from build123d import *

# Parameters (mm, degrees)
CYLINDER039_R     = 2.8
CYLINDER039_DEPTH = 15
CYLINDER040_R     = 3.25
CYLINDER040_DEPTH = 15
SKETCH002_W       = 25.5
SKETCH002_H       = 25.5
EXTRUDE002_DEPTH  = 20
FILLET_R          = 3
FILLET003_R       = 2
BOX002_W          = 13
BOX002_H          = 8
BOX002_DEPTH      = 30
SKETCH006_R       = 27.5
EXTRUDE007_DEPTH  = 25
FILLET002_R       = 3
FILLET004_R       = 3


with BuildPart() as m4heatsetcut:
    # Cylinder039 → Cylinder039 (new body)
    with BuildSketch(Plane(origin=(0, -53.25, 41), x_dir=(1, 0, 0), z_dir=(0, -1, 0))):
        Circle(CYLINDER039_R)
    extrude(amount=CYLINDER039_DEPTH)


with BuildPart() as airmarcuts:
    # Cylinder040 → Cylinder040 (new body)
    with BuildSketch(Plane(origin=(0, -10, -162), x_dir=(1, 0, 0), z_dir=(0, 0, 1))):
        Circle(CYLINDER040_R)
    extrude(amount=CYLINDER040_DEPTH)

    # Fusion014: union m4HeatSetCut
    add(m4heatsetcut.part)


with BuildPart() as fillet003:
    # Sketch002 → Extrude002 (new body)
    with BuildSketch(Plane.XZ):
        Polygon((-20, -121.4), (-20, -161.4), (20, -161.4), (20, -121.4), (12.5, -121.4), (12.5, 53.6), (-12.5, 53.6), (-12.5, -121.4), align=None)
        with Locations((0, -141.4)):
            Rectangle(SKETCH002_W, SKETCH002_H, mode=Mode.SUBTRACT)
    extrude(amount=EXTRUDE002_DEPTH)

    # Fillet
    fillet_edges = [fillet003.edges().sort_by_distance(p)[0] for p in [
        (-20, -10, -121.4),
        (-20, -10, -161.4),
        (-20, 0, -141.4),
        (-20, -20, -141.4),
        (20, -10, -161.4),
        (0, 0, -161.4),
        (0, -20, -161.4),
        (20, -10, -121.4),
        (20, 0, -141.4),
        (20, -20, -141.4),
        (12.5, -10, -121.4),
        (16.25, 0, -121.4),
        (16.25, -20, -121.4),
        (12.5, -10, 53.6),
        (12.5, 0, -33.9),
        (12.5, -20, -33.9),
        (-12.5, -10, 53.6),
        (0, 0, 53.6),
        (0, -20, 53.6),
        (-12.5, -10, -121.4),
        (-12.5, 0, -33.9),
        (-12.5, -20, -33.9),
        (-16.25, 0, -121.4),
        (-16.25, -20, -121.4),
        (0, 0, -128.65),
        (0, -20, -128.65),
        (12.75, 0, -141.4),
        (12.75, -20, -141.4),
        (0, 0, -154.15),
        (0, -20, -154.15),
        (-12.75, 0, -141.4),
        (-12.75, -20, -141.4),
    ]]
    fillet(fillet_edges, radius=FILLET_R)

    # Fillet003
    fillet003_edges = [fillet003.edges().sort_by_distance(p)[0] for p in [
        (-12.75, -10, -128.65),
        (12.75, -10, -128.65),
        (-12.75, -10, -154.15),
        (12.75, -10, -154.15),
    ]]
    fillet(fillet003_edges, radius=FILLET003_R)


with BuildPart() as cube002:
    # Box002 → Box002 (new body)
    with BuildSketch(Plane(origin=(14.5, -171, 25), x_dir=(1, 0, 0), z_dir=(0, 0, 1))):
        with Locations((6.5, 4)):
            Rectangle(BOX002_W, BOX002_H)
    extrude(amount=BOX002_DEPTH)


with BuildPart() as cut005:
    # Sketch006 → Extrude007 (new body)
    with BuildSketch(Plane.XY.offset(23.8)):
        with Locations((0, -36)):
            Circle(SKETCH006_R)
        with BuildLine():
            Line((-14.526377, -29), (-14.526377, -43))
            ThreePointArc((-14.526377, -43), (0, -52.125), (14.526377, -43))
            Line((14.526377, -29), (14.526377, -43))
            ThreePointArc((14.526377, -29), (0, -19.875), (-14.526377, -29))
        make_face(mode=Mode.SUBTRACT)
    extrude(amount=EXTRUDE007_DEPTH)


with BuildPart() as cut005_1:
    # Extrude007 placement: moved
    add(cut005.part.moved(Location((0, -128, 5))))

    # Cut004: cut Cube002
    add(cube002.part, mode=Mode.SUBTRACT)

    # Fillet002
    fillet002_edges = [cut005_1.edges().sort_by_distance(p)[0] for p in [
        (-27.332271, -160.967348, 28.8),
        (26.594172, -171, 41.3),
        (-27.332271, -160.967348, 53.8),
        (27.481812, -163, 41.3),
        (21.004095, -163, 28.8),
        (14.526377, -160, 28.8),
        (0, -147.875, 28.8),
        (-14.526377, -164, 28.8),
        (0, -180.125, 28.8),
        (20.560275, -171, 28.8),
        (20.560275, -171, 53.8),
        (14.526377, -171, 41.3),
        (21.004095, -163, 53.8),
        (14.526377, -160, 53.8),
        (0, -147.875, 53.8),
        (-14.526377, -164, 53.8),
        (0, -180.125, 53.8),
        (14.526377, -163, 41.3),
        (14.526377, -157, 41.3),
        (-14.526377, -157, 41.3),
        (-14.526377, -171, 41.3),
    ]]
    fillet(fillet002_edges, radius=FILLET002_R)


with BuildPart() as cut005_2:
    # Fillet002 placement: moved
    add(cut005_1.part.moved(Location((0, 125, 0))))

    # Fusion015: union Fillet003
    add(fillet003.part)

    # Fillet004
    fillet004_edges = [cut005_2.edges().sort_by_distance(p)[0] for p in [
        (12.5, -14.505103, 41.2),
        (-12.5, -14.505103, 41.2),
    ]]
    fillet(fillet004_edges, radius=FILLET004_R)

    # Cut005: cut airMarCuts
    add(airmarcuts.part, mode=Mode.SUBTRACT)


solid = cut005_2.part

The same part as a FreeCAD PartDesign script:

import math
import FreeCAD as App
import Part
import Sketcher

V = App.Vector


def edges_at(feature, points):
    """Names of the edges that pass closest to the given points."""
    edges = feature.Shape.Edges
    near = lambda p: min(range(len(edges)), key=lambda i: edges[i].distToShape(Part.Vertex(*p))[0])
    return sorted({f"Edge{near(p) + 1}" for p in points})


def add_polygon(sketch, points):
    """Adds a closed chain of lines whose ends are joined by coincident constraints."""
    first, n = sketch.GeometryCount, len(points)
    for a, b in zip(points, points[1:] + points[:1]):
        sketch.addGeometry(Part.LineSegment(App.Vector(*a, 0), App.Vector(*b, 0)), False)
    for i in range(n):
        sketch.addConstraint(Sketcher.Constraint("Coincident", first + i, 2, first + (i + 1) % n, 1))

doc = App.newDocument("Part")
body = doc.addObject("PartDesign::Body", "Body")

sketch1 = body.newObject("Sketcher::SketchObject", "Sketch")
sketch1.AttachmentSupport = (doc.getObject("XZ_Plane"), [""])
sketch1.MapMode = "FlatFace"
sketch1.AttachmentOffset = App.Placement(V(0, 0, 53.25), App.Rotation())
sketch1.addGeometry(Part.Circle(V(0, 41, 0), V(0, 0, 1), 2.8), False)
sketch1.addConstraint(Sketcher.Constraint("PointOnObject", 0, 3, -2))
sketch1.addConstraint(Sketcher.Constraint("Diameter", 0, 5.6))
sketch1.addConstraint(Sketcher.Constraint("DistanceY", -1, 1, 0, 3, 41.0))
pad1 = body.newObject("PartDesign::Pad", "Pad")
pad1.Profile = sketch1
pad1.Length = 15
body2 = doc.addObject("PartDesign::Body", "Body001")
body2.AllowCompound = True

sketch2 = body2.newObject("Sketcher::SketchObject", "Sketch001")
sketch2.AttachmentSupport = (doc.getObject("XY_Plane001"), [""])
sketch2.MapMode = "FlatFace"
sketch2.AttachmentOffset = App.Placement(V(0, 0, -162), App.Rotation())
sketch2.addGeometry(Part.Circle(V(0, -10, 0), V(0, 0, 1), 3.25), False)
sketch2.addConstraint(Sketcher.Constraint("PointOnObject", 0, 3, -2))
sketch2.addConstraint(Sketcher.Constraint("Diameter", 0, 6.5))
sketch2.addConstraint(Sketcher.Constraint("DistanceY", 0, 3, -1, 1, 10.0))
pad2 = body2.newObject("PartDesign::Pad", "Pad001")
pad2.Profile = sketch2
pad2.Length = 15
doc.recompute()

boolean = body2.newObject("PartDesign::Boolean", "Boolean")
boolean.Type = "Fuse"
boolean.addObjects([body])
body3 = doc.addObject("PartDesign::Body", "Body002")

sketch3 = body3.newObject("Sketcher::SketchObject", "Sketch002")
sketch3.AttachmentSupport = (doc.getObject("XZ_Plane002"), [""])
sketch3.MapMode = "FlatFace"
add_polygon(sketch3, [(-20, -121.4), (-20, -161.4), (20, -161.4), (20, -121.4), (12.5, -121.4), (12.5, 53.6), (-12.5, 53.6), (-12.5, -121.4)])
add_polygon(sketch3, [(12.75, -154.15), (-12.75, -154.15), (-12.75, -128.65), (12.75, -128.65)])
sketch3.addConstraint(Sketcher.Constraint("Vertical", 0))
sketch3.addConstraint(Sketcher.Constraint("Horizontal", 1))
sketch3.addConstraint(Sketcher.Constraint("Vertical", 2))
sketch3.addConstraint(Sketcher.Constraint("Horizontal", 3))
sketch3.addConstraint(Sketcher.Constraint("Vertical", 4))
sketch3.addConstraint(Sketcher.Constraint("Horizontal", 5))
sketch3.addConstraint(Sketcher.Constraint("Vertical", 6))
sketch3.addConstraint(Sketcher.Constraint("Horizontal", 7))
sketch3.addConstraint(Sketcher.Constraint("Horizontal", 8))
sketch3.addConstraint(Sketcher.Constraint("Vertical", 9))
sketch3.addConstraint(Sketcher.Constraint("Horizontal", 10))
sketch3.addConstraint(Sketcher.Constraint("Vertical", 11))
sketch3.addConstraint(Sketcher.Constraint("Symmetric", 3, 2, 6, 2, -2))
sketch3.addConstraint(Sketcher.Constraint("Equal", 3, 7))
sketch3.addConstraint(Sketcher.Constraint("Equal", 1, 0))
sketch3.addConstraint(Sketcher.Constraint("Equal", 10, 9))
sketch3.addConstraint(Sketcher.Constraint("DistanceX", 1, 1, 1, 2, 40.0))
sketch3.addConstraint(Sketcher.Constraint("DistanceX", 5, 2, 5, 1, 25.0))
sketch3.addConstraint(Sketcher.Constraint("DistanceY", 4, 1, 4, 2, 175.0))
sketch3.addConstraint(Sketcher.Constraint("DistanceX", 8, 2, 8, 1, 25.5))
sketch3.addConstraint(Sketcher.Constraint("DistanceY", 0, 2, -1, 1, 161.4))
sketch3.addConstraint(Sketcher.Constraint("DistanceX", 8, 2, -1, 1, 12.75))
sketch3.addConstraint(Sketcher.Constraint("DistanceY", 8, 2, -1, 1, 154.15))
pad3 = body3.newObject("PartDesign::Pad", "Pad002")
pad3.Profile = sketch3
pad3.Length = 20
doc.recompute()

fillet = body3.newObject("PartDesign::Fillet", "Fillet")
fillet.Base = (pad3, edges_at(pad3, [
    (-20, -10, -121.4),
    (-20, -10, -161.4),
    (-20, 0, -141.4),
    (-20, -20, -141.4),
    (20, -10, -161.4),
    (0, 0, -161.4),
    (0, -20, -161.4),
    (20, -10, -121.4),
    (20, 0, -141.4),
    (20, -20, -141.4),
    (12.5, -10, -121.4),
    (16.25, 0, -121.4),
    (16.25, -20, -121.4),
    (12.5, -10, 53.6),
    (12.5, 0, -33.9),
    (12.5, -20, -33.9),
    (-12.5, -10, 53.6),
    (0, 0, 53.6),
    (0, -20, 53.6),
    (-12.5, -10, -121.4),
    (-12.5, 0, -33.9),
    (-12.5, -20, -33.9),
    (-16.25, 0, -121.4),
    (-16.25, -20, -121.4),
    (0, 0, -128.65),
    (0, -20, -128.65),
    (12.75, 0, -141.4),
    (12.75, -20, -141.4),
    (0, 0, -154.15),
    (0, -20, -154.15),
    (-12.75, 0, -141.4),
    (-12.75, -20, -141.4),
]))
fillet.Radius = 3
doc.recompute()

fillet2 = body3.newObject("PartDesign::Fillet", "Fillet001")
fillet2.Base = (fillet, edges_at(fillet, [
    (-12.75, -10, -128.65),
    (12.75, -10, -128.65),
    (-12.75, -10, -154.15),
    (12.75, -10, -154.15),
]))
fillet2.Radius = 2
body4 = doc.addObject("PartDesign::Body", "Body003")

sketch4 = body4.newObject("Sketcher::SketchObject", "Sketch003")
sketch4.AttachmentSupport = (doc.getObject("XY_Plane003"), [""])
sketch4.MapMode = "FlatFace"
sketch4.AttachmentOffset = App.Placement(V(0, 0, 25), App.Rotation())
add_polygon(sketch4, [(14.5, -163), (14.5, -171), (27.5, -171), (27.5, -163)])
sketch4.addConstraint(Sketcher.Constraint("Vertical", 0))
sketch4.addConstraint(Sketcher.Constraint("Horizontal", 1))
sketch4.addConstraint(Sketcher.Constraint("Vertical", 2))
sketch4.addConstraint(Sketcher.Constraint("Horizontal", 3))
sketch4.addConstraint(Sketcher.Constraint("DistanceX", 1, 1, 1, 2, 13.0))
sketch4.addConstraint(Sketcher.Constraint("DistanceY", 0, 2, 0, 1, 8.0))
sketch4.addConstraint(Sketcher.Constraint("DistanceY", 0, 2, -1, 1, 171.0))
sketch4.addConstraint(Sketcher.Constraint("DistanceX", -1, 1, 0, 2, 14.5))
pad4 = body4.newObject("PartDesign::Pad", "Pad003")
pad4.Profile = sketch4
pad4.Length = 30
body5 = doc.addObject("PartDesign::Body", "Body004")

sketch5 = body5.newObject("Sketcher::SketchObject", "Sketch004")
sketch5.AttachmentSupport = (doc.getObject("XY_Plane004"), [""])
sketch5.MapMode = "FlatFace"
sketch5.AttachmentOffset = App.Placement(V(0, 0, 23.8), App.Rotation())
sketch5.addGeometry(Part.Circle(V(0, -36, 0), V(0, 0, 1), 27.5), False)
sketch5.addGeometry(Part.LineSegment(V(-14.526377, -43, 0), V(-14.526377, -29, 0)), False)
sketch5.addGeometry(Part.ArcOfCircle(Part.Circle(V(0, -36, 0), V(0, 0, 1), 16.125), math.radians(25.728582), math.radians(154.271418)), False)
sketch5.addGeometry(Part.LineSegment(V(14.526377, -29, 0), V(14.526377, -43, 0)), False)
sketch5.addGeometry(Part.ArcOfCircle(Part.Circle(V(0, -36, 0), V(0, 0, 1), 16.125), math.radians(-154.271418), math.radians(-25.728582)), False)
sketch5.addConstraint(Sketcher.Constraint("Coincident", 1, 2, 2, 2))
sketch5.addConstraint(Sketcher.Constraint("Coincident", 2, 1, 3, 1))
sketch5.addConstraint(Sketcher.Constraint("Coincident", 3, 2, 4, 2))
sketch5.addConstraint(Sketcher.Constraint("Coincident", 4, 1, 1, 1))
sketch5.addConstraint(Sketcher.Constraint("Vertical", 1))
sketch5.addConstraint(Sketcher.Constraint("Vertical", 3))
sketch5.addConstraint(Sketcher.Constraint("Coincident", 2, 3, 0, 3))
sketch5.addConstraint(Sketcher.Constraint("Coincident", 4, 3, 0, 3))
sketch5.addConstraint(Sketcher.Constraint("Equal", 2, 4))
sketch5.addConstraint(Sketcher.Constraint("Symmetric", 1, 2, 2, 1, -2))
sketch5.addConstraint(Sketcher.Constraint("Diameter", 0, 55.0))
sketch5.addConstraint(Sketcher.Constraint("DistanceY", 1, 1, 1, 2, 14.0))
sketch5.addConstraint(Sketcher.Constraint("DistanceY", 0, 3, -1, 1, 36.0))
sketch5.addConstraint(Sketcher.Constraint("Radius", 2, 16.125))
pad5 = body5.newObject("PartDesign::Pad", "Pad004")
pad5.Profile = sketch5
pad5.Length = 25
body6 = doc.addObject("PartDesign::Body", "Body005")
doc.recompute()

body5.Placement = App.Placement(V(0, -128, 5), App.Rotation(V(0, 0, 1), 0))
boolean2 = body6.newObject("PartDesign::Boolean", "Boolean001")
boolean2.Type = "Fuse"
boolean2.addObjects([body5])
doc.recompute()

boolean3 = body6.newObject("PartDesign::Boolean", "Boolean002")
boolean3.Type = "Cut"
boolean3.addObjects([body4])
doc.recompute()

fillet3 = body6.newObject("PartDesign::Fillet", "Fillet002")
fillet3.Base = (boolean3, ["Edge1"])
fillet3.UseAllEdges = True
fillet3.Radius = 3
body7 = doc.addObject("PartDesign::Body", "Body006")
doc.recompute()

body6.Placement = App.Placement(V(0, 125, 0), App.Rotation(V(0, 0, 1), 0))
boolean4 = body7.newObject("PartDesign::Boolean", "Boolean003")
boolean4.Type = "Fuse"
boolean4.addObjects([body6])
doc.recompute()

boolean5 = body7.newObject("PartDesign::Boolean", "Boolean004")
boolean5.Type = "Fuse"
boolean5.addObjects([body3])
doc.recompute()

fillet4 = body7.newObject("PartDesign::Fillet", "Fillet003")
fillet4.Base = (boolean5, edges_at(boolean5, [(12.5, -14.505, 41.2), (-12.5, -14.505, 41.2)]))
fillet4.Radius = 3
doc.recompute()

boolean6 = body7.newObject("PartDesign::Boolean", "Boolean005")
boolean6.Type = "Cut"
boolean6.addObjects([body2])

doc.recompute()
